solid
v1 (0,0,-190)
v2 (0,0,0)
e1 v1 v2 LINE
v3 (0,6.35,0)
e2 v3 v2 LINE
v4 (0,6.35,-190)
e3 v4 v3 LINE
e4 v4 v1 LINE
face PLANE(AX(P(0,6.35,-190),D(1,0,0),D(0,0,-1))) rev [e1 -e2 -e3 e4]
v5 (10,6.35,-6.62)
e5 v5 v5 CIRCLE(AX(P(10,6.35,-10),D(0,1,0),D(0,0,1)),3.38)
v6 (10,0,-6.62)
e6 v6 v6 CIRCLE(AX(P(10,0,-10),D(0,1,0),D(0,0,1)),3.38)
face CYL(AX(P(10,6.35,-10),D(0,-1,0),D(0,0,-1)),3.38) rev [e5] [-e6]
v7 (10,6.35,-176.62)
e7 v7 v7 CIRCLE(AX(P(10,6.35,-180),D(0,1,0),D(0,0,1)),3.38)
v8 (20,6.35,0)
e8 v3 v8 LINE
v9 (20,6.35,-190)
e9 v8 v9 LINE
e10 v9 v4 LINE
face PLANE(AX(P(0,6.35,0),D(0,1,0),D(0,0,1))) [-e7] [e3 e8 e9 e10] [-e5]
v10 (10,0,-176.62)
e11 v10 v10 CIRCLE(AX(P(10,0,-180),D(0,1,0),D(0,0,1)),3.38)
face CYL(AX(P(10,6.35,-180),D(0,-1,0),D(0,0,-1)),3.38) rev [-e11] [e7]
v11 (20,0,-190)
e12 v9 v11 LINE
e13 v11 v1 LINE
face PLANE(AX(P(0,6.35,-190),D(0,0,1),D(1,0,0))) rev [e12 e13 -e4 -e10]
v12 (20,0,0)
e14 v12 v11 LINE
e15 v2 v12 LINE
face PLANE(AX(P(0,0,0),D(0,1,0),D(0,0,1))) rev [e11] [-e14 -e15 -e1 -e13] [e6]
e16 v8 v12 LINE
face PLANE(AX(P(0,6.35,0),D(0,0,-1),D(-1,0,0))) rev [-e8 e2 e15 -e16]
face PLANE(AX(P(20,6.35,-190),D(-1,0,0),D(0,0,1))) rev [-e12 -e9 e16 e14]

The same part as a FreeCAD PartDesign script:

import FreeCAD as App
import Part
import Sketcher
from FreeCAD import Vector

doc = App.newDocument("Part")
params = doc.addObject("Spreadsheet::Sheet", "Params")
for row, (alias, value) in enumerate([
    ("sketch1_diameter", "6.76 mm"),
    ("sketch1_width", "20 mm"),
    ("sketch1_height", "190 mm"),
    ("pad1_length", "6.35 mm"),
], start=1):
    params.set(f"A{row}", alias)
    params.set(f"B{row}", "=" + value)
    params.setAlias(f"B{row}", alias)

body = doc.addObject("PartDesign::Body", "Body")

# Sketch on XZ plane
sketch1 = body.newObject("Sketcher::SketchObject", "Sketch")
sketch1.AttachmentSupport = (doc.getObject("XZ_Plane"), [""])
sketch1.MapMode = "FlatFace"
sketch1.addGeometry([
    Part.LineSegment(Vector(0, -190, 0), Vector(0, 0, 0)),  # 0
    Part.LineSegment(Vector(0, 0, 0), Vector(20, 0, 0)),  # 1
    Part.LineSegment(Vector(20, 0, 0), Vector(20, -190, 0)),  # 2
    Part.LineSegment(Vector(20, -190, 0), Vector(0, -190, 0)),  # 3
    Part.Circle(Vector(10, -10, 0), Vector(0, 0, 1), 3.4),  # 4
    Part.Circle(Vector(10, -180, 0), Vector(0, 0, 1), 3.4),  # 5
], False)
sketch1.addConstraint([
    Sketcher.Constraint("Coincident", 0, 2, 1, 1),
    Sketcher.Constraint("Coincident", 1, 2, 2, 1),
    Sketcher.Constraint("Coincident", 2, 2, 3, 1),
    Sketcher.Constraint("Coincident", 3, 2, 0, 1),
    Sketcher.Constraint("Vertical", 0),
    Sketcher.Constraint("Horizontal", 1),
    Sketcher.Constraint("Vertical", 2),
    Sketcher.Constraint("Horizontal", 3),
    Sketcher.Constraint("Coincident", 0, 2, -1, 1),
    Sketcher.Constraint("Equal", 4, 5),
    Sketcher.Constraint("Vertical", 4, 3, 5, 3),
    Sketcher.Constraint("Diameter", 4, 6.76),
    Sketcher.Constraint("DistanceX", 1, 1, 1, 2, 20.0),
    Sketcher.Constraint("DistanceY", 0, 1, 0, 2, 190.0),
    Sketcher.Constraint("DistanceX", -1, 1, 4, 3, 10.0),
    Sketcher.Constraint("DistanceY", 4, 3, -1, 1, 10.0),
    Sketcher.Constraint("DistanceY", 5, 3, -1, 1, 180.0),
])
sketch1.setExpression("Constraints[11]", "Params.sketch1_diameter")
sketch1.setExpression("Constraints[12]", "Params.sketch1_width")
sketch1.setExpression("Constraints[13]", "Params.sketch1_height")
pad1 = body.newObject("PartDesign::Pad", "Pad")
pad1.Profile = sketch1
pad1.setExpression("Length", "Params.pad1_length")
pad1.Reversed = True

doc.recompute()
